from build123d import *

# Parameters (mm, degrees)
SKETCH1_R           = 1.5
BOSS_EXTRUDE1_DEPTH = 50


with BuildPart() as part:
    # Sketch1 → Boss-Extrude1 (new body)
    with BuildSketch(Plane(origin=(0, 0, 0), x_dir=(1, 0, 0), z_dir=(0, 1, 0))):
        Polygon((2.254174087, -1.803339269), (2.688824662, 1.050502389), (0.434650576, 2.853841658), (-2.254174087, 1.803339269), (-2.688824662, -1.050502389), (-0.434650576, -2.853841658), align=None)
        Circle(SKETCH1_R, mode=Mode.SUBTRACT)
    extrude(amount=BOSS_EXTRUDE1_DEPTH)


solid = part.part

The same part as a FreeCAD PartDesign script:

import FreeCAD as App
import Part
import Sketcher

V = App.Vector

doc = App.newDocument("Part")
body = doc.addObject("PartDesign::Body", "Body")

# Sketch on XZ plane
sketch1 = body.newObject("Sketcher::SketchObject", "Sketch")
sketch1.AttachmentSupport = (doc.getObject("XZ_Plane"), [""])
sketch1.MapMode = "FlatFace"
sketch1.addGeometry(Part.LineSegment(V(2.254174, 1.803339, 0), V(2.688825, -1.050502, 0)), False)
sketch1.addGeometry(Part.LineSegment(V(2.688825, -1.050502, 0), V(0.434651, -2.853842, 0)), False)
sketch1.addGeometry(Part.LineSegment(V(0.434651, -2.853842, 0), V(-2.254174, -1.803339, 0)), False)
sketch1.addGeometry(Part.LineSegment(V(-2.254174, -1.803339, 0), V(-2.688825, 1.050502, 0)), False)
sketch1.addGeometry(Part.LineSegment(V(-2.688825, 1.050502, 0), V(-0.434651, 2.853842, 0)), False)
sketch1.addGeometry(Part.LineSegment(V(-0.434651, 2.853842, 0), V(2.254174, 1.803339, 0)), False)
sketch1.addGeometry(Part.Circle(V(0, 0, 0), V(0, 0, 1), 1.5), False)
sketch1.addConstraint(Sketcher.Constraint("Coincident", 0, 2, 1, 1))
sketch1.addConstraint(Sketcher.Constraint("Coincident", 1, 2, 2, 1))
sketch1.addConstraint(Sketcher.Constraint("Coincident", 2, 2, 3, 1))
sketch1.addConstraint(Sketcher.Constraint("Coincident", 3, 2, 4, 1))
sketch1.addConstraint(Sketcher.Constraint("Coincident", 4, 2, 5, 1))
sketch1.addConstraint(Sketcher.Constraint("Coincident", 5, 2, 0, 1))
sketch1.addConstraint(Sketcher.Constraint("Coincident", 6, 3, -1, 1))
sketch1.addConstraint(Sketcher.Constraint("Symmetric", 0, 2, 3, 2, -1, 1))
sketch1.addConstraint(Sketcher.Constraint("Symmetric", 1, 2, 4, 2, -1, 1))
sketch1.addConstraint(Sketcher.Constraint("Symmetric", 2, 2, 5, 2, -1, 1))
sketch1.addConstraint(Sketcher.Constraint("Equal", 0, 1))
sketch1.addConstraint(Sketcher.Constraint("Equal", 1, 2))
sketch1.addConstraint(Sketcher.Constraint("Diameter", 6, 3.0))
sketch1.addConstraint(Sketcher.Constraint("DistanceX", 2, 2, 0, 2, 4.942999))
sketch1.addConstraint(Sketcher.Constraint("DistanceX", 4, 2, 1, 2, 0.869301))
sketch1.addConstraint(Sketcher.Constraint("Distance", 0, 2.886751))
sketch1.addConstraint(Sketcher.Constraint("DistanceY", 1, 2, -1, 1, 2.853842))
pad1 = body.newObject("PartDesign::Pad", "Pad")
pad1.Profile = sketch1
pad1.Length = 50
pad1.Reversed = True

doc.recompute()
